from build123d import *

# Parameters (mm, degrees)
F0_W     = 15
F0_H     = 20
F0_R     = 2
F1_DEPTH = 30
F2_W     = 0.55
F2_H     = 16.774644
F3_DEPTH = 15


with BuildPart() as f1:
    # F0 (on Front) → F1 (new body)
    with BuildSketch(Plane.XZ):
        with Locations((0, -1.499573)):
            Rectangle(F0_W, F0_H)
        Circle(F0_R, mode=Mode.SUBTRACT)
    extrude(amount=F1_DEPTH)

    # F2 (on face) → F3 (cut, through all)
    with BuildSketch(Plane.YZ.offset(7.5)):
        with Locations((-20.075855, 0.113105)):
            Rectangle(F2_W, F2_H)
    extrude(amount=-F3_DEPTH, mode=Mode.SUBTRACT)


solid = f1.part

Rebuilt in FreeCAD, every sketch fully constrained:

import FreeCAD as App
import Part
import Sketcher
from FreeCAD import Vector
Q = App.Units.Quantity


def add_polygon(sketch, points):
    """Adds a closed chain of lines whose ends are joined by coincident constraints."""
    first, n = sketch.GeometryCount, len(points)
    for a, b in zip(points, points[1:] + points[:1]):
        sketch.addGeometry(Part.LineSegment(App.Vector(*a, 0), App.Vector(*b, 0)), False)
    for i in range(n):
        sketch.addConstraint(Sketcher.Constraint("Coincident", first + i, 2, first + (i + 1) % n, 1))

doc = App.newDocument("Part")
body = doc.addObject("PartDesign::Body", "Body")

sketch1 = body.newObject("Sketcher::SketchObject", "Sketch")
sketch1.AttachmentSupport = (doc.getObject("XZ_Plane"), [""])
sketch1.MapMode = "FlatFace"
add_polygon(sketch1, [(-7.5, 8.5), (-7.5, -11.5), (7.5, -11.5), (7.5, 8.5)])
sketch1.addGeometry(Part.Circle(Vector(0, 0, 0), Vector(0, 0, 1), 2), False)
sketch1.addConstraint(Sketcher.Constraint("Vertical", 0))
sketch1.addConstraint(Sketcher.Constraint("Horizontal", 1))
sketch1.addConstraint(Sketcher.Constraint("Vertical", 2))
sketch1.addConstraint(Sketcher.Constraint("Horizontal", 3))
sketch1.addConstraint(Sketcher.Constraint("Coincident", 4, 3, -1, 1))
sketch1.addConstraint(Sketcher.Constraint("Diameter", 4, Q("4 mm")))
sketch1.addConstraint(Sketcher.Constraint("DistanceX", 1, 1, 1, 2, Q("15 mm")))
sketch1.addConstraint(Sketcher.Constraint("DistanceY", 0, 2, 0, 1, Q("20 mm")))
sketch1.addConstraint(Sketcher.Constraint("DistanceX", 0, 2, -1, 1, Q("7.5 mm")))
sketch1.addConstraint(Sketcher.Constraint("DistanceY", 0, 2, -1, 1, Q("11.499573 mm")))
pad1 = body.newObject("PartDesign::Pad", "Pad")
pad1.Profile = sketch1
pad1.Length = 30

sketch2 = body.newObject("Sketcher::SketchObject", "Sketch001")
sketch2.AttachmentSupport = (doc.getObject("YZ_Plane"), [""])
sketch2.MapMode = "FlatFace"
sketch2.AttachmentOffset = App.Placement(Vector(0, 0, 7.5), App.Rotation())
add_polygon(sketch2, [(-20.4, 8.5), (-20.4, -8.3), (-19.8, -8.3), (-19.8, 8.5)])
sketch2.addConstraint(Sketcher.Constraint("Vertical", 0))
sketch2.addConstraint(Sketcher.Constraint("Horizontal", 1))
sketch2.addConstraint(Sketcher.Constraint("Vertical", 2))
sketch2.addConstraint(Sketcher.Constraint("Horizontal", 3))
sketch2.addConstraint(Sketcher.Constraint("DistanceX", 1, 1, 1, 2, Q("0.55 mm")))
sketch2.addConstraint(Sketcher.Constraint("DistanceY", 0, 2, 0, 1, Q("16.774644 mm")))
sketch2.addConstraint(Sketcher.Constraint("DistanceX", 0, 2, -1, 1, Q("20.350855 mm")))
sketch2.addConstraint(Sketcher.Constraint("DistanceY", 0, 2, -1, 1, Q("8.274217 mm")))
pocket1 = body.newObject("PartDesign::Pocket", "Pocket")
pocket1.Profile = sketch2
pocket1.Type = "ThroughAll"

doc.recompute()
